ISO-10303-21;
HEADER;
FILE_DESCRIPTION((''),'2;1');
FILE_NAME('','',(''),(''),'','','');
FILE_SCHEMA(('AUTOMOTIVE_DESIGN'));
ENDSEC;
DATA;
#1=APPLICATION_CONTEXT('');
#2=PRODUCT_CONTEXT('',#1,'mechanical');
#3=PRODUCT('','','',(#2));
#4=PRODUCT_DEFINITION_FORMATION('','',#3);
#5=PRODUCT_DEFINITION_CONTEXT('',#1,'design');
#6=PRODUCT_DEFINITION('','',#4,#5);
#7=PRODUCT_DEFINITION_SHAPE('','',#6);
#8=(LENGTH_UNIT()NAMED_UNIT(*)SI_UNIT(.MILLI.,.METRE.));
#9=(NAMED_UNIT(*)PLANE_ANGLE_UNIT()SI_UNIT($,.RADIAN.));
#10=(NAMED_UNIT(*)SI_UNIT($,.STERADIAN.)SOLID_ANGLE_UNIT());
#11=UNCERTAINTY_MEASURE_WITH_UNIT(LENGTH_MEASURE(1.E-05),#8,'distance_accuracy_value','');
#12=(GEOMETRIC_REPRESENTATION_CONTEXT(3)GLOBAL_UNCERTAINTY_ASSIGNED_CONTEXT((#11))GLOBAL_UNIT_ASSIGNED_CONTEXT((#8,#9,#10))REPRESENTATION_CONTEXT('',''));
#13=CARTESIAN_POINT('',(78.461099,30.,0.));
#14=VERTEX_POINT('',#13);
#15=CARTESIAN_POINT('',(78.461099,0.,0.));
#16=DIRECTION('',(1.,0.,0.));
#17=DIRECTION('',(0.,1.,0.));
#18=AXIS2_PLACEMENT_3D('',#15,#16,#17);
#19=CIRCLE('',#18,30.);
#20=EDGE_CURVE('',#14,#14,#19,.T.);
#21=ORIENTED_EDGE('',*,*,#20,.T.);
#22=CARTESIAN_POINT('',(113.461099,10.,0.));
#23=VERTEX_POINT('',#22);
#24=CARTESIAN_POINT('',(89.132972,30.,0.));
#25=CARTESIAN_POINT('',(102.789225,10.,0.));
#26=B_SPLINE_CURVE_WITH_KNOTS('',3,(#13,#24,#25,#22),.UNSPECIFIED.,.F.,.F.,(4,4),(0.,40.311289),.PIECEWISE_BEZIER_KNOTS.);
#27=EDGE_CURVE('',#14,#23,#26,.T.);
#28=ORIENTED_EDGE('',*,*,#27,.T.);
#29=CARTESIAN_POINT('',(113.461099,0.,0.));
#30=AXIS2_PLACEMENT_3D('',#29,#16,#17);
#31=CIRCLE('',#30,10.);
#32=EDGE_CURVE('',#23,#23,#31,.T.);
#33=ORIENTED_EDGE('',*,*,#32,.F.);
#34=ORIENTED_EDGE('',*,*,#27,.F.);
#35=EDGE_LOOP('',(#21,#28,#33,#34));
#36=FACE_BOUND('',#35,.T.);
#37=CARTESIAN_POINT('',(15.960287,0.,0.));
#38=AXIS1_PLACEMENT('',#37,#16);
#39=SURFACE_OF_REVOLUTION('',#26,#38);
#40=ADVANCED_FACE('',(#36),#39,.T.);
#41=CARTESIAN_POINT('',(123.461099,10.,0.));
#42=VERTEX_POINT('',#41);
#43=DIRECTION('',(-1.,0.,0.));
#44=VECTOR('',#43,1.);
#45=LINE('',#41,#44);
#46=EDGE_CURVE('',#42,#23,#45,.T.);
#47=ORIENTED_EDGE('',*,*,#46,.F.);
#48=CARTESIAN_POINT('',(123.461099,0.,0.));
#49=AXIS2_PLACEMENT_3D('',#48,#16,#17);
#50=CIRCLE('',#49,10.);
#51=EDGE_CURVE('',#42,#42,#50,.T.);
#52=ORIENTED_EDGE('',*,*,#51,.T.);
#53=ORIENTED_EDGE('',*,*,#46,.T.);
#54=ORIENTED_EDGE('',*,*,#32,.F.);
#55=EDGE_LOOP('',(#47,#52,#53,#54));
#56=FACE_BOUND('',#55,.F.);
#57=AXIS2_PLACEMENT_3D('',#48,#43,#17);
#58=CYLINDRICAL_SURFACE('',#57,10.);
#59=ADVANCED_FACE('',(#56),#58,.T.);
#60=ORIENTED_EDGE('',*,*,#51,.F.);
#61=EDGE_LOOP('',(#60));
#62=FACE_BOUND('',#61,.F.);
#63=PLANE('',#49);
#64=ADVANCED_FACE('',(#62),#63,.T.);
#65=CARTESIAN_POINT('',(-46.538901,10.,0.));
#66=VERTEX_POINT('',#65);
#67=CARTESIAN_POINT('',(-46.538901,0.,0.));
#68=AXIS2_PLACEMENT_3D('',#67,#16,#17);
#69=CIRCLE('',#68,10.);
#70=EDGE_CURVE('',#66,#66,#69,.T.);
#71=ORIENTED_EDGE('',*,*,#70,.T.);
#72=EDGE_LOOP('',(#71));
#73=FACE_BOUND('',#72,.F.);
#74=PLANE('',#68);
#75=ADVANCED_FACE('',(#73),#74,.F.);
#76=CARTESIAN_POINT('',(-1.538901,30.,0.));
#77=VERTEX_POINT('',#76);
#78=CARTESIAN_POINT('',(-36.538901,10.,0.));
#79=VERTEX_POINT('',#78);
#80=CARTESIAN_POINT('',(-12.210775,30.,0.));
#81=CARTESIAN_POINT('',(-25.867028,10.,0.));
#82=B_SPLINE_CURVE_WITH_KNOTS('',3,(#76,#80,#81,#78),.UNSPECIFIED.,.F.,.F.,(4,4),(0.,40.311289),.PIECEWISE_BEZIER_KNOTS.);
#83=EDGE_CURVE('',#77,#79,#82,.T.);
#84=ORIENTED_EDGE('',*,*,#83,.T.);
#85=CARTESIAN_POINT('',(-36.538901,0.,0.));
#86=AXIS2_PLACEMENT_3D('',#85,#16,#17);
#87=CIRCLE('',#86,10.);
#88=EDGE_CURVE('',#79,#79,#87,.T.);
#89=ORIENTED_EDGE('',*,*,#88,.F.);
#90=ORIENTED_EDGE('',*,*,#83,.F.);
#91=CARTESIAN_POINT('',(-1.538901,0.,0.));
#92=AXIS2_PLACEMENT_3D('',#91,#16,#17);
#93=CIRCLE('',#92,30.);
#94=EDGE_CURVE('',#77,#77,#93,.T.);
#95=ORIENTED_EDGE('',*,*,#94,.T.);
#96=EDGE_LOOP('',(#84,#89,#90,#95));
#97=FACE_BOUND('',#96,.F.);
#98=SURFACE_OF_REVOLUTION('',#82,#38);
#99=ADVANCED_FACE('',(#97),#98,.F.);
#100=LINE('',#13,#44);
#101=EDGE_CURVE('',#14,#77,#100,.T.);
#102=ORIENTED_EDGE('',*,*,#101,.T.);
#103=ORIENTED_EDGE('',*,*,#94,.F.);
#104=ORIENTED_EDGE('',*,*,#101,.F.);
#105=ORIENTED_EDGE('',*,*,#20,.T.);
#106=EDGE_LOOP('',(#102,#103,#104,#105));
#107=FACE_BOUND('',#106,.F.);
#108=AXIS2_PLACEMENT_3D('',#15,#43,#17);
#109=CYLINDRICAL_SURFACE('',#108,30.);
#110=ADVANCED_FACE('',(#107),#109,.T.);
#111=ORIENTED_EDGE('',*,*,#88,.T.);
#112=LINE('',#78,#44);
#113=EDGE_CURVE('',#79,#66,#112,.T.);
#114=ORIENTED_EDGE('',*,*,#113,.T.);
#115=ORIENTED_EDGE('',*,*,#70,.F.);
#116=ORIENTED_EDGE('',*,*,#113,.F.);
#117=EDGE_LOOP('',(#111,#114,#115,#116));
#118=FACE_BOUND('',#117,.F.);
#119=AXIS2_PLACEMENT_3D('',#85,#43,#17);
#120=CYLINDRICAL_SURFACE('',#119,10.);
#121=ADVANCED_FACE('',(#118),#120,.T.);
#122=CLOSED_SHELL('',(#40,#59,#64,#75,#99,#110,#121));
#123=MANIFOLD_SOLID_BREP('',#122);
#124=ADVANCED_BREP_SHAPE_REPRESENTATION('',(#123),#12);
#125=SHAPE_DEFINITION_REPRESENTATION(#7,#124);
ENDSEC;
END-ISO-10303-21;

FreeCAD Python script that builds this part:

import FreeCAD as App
import Part
import Sketcher
from FreeCAD import Vector

doc = App.newDocument("Part")
body = doc.addObject("PartDesign::Body", "Body")

# Sketch on XY plane
sketch1 = body.newObject("Sketcher::SketchObject", "Sketch")
sketch1.AttachmentSupport = (doc.getObject("XY_Plane"), [""])
sketch1.MapMode = "FlatFace"
sketch1.addGeometry(Part.LineSegment(Vector(-36.538901, 10, 0), Vector(-46.538901, 10, 0)), False)
sketch1.addGeometry(Part.LineSegment(Vector(-46.538901, 10, 0), Vector(-46.538901, 0, 0)), False)
sketch1.addGeometry(Part.LineSegment(Vector(-46.538901, 0, 0), Vector(123.461099, 0, 0)), False)
sketch1.addGeometry(Part.LineSegment(Vector(123.461099, 0, 0), Vector(123.461099, 10, 0)), False)
sketch1.addGeometry(Part.LineSegment(Vector(123.461099, 10, 0), Vector(113.461099, 10, 0)), False)
sketch1.addGeometry(Part.BSplineCurve([Vector(78.461099, 30, 0), Vector(89.132972, 30, 0), Vector(102.789225, 10, 0), Vector(113.461099, 10, 0)], [4, 4], [0, 40.311289], False, 3, [1, 1, 1, 1], False), False)
sketch1.addGeometry(Part.LineSegment(Vector(78.461099, 30, 0), Vector(-1.538901, 30, 0)), False)
sketch1.addGeometry(Part.BSplineCurve([Vector(-1.538901, 30, 0), Vector(-12.210775, 30, 0), Vector(-25.867028, 10, 0), Vector(-36.538901, 10, 0)], [4, 4], [0, 40.311289], False, 3, [1, 1, 1, 1], False), False)
sketch1.addConstraint(Sketcher.Constraint("Block", 5))
sketch1.addConstraint(Sketcher.Constraint("Block", 7))
sketch1.addConstraint(Sketcher.Constraint("Coincident", 0, 2, 1, 1))
sketch1.addConstraint(Sketcher.Constraint("Coincident", 1, 2, 2, 1))
sketch1.addConstraint(Sketcher.Constraint("Coincident", 2, 2, 3, 1))
sketch1.addConstraint(Sketcher.Constraint("Coincident", 3, 2, 4, 1))
sketch1.addConstraint(Sketcher.Constraint("Coincident", 4, 2, 5, 2))
sketch1.addConstraint(Sketcher.Constraint("Coincident", 5, 1, 6, 1))
sketch1.addConstraint(Sketcher.Constraint("Coincident", 6, 2, 7, 1))
sketch1.addConstraint(Sketcher.Constraint("Coincident", 7, 2, 0, 1))
sketch1.addConstraint(Sketcher.Constraint("Horizontal", 0))
sketch1.addConstraint(Sketcher.Constraint("Vertical", 1))
sketch1.addConstraint(Sketcher.Constraint("Horizontal", 2))
sketch1.addConstraint(Sketcher.Constraint("Vertical", 3))
sketch1.addConstraint(Sketcher.Constraint("Horizontal", 4))
sketch1.addConstraint(Sketcher.Constraint("PointOnObject", 1, 2, -1))
sketch1.addConstraint(Sketcher.Constraint("Equal", 0, 4))
sketch1.addConstraint(Sketcher.Constraint("Equal", 4, 1))
revolution = body.newObject("PartDesign::Revolution", "Revolution")
revolution.Profile = sketch1
revolution.ReferenceAxis = (sketch1, ["H_Axis"])
revolution.Angle = 360

doc.recompute()
